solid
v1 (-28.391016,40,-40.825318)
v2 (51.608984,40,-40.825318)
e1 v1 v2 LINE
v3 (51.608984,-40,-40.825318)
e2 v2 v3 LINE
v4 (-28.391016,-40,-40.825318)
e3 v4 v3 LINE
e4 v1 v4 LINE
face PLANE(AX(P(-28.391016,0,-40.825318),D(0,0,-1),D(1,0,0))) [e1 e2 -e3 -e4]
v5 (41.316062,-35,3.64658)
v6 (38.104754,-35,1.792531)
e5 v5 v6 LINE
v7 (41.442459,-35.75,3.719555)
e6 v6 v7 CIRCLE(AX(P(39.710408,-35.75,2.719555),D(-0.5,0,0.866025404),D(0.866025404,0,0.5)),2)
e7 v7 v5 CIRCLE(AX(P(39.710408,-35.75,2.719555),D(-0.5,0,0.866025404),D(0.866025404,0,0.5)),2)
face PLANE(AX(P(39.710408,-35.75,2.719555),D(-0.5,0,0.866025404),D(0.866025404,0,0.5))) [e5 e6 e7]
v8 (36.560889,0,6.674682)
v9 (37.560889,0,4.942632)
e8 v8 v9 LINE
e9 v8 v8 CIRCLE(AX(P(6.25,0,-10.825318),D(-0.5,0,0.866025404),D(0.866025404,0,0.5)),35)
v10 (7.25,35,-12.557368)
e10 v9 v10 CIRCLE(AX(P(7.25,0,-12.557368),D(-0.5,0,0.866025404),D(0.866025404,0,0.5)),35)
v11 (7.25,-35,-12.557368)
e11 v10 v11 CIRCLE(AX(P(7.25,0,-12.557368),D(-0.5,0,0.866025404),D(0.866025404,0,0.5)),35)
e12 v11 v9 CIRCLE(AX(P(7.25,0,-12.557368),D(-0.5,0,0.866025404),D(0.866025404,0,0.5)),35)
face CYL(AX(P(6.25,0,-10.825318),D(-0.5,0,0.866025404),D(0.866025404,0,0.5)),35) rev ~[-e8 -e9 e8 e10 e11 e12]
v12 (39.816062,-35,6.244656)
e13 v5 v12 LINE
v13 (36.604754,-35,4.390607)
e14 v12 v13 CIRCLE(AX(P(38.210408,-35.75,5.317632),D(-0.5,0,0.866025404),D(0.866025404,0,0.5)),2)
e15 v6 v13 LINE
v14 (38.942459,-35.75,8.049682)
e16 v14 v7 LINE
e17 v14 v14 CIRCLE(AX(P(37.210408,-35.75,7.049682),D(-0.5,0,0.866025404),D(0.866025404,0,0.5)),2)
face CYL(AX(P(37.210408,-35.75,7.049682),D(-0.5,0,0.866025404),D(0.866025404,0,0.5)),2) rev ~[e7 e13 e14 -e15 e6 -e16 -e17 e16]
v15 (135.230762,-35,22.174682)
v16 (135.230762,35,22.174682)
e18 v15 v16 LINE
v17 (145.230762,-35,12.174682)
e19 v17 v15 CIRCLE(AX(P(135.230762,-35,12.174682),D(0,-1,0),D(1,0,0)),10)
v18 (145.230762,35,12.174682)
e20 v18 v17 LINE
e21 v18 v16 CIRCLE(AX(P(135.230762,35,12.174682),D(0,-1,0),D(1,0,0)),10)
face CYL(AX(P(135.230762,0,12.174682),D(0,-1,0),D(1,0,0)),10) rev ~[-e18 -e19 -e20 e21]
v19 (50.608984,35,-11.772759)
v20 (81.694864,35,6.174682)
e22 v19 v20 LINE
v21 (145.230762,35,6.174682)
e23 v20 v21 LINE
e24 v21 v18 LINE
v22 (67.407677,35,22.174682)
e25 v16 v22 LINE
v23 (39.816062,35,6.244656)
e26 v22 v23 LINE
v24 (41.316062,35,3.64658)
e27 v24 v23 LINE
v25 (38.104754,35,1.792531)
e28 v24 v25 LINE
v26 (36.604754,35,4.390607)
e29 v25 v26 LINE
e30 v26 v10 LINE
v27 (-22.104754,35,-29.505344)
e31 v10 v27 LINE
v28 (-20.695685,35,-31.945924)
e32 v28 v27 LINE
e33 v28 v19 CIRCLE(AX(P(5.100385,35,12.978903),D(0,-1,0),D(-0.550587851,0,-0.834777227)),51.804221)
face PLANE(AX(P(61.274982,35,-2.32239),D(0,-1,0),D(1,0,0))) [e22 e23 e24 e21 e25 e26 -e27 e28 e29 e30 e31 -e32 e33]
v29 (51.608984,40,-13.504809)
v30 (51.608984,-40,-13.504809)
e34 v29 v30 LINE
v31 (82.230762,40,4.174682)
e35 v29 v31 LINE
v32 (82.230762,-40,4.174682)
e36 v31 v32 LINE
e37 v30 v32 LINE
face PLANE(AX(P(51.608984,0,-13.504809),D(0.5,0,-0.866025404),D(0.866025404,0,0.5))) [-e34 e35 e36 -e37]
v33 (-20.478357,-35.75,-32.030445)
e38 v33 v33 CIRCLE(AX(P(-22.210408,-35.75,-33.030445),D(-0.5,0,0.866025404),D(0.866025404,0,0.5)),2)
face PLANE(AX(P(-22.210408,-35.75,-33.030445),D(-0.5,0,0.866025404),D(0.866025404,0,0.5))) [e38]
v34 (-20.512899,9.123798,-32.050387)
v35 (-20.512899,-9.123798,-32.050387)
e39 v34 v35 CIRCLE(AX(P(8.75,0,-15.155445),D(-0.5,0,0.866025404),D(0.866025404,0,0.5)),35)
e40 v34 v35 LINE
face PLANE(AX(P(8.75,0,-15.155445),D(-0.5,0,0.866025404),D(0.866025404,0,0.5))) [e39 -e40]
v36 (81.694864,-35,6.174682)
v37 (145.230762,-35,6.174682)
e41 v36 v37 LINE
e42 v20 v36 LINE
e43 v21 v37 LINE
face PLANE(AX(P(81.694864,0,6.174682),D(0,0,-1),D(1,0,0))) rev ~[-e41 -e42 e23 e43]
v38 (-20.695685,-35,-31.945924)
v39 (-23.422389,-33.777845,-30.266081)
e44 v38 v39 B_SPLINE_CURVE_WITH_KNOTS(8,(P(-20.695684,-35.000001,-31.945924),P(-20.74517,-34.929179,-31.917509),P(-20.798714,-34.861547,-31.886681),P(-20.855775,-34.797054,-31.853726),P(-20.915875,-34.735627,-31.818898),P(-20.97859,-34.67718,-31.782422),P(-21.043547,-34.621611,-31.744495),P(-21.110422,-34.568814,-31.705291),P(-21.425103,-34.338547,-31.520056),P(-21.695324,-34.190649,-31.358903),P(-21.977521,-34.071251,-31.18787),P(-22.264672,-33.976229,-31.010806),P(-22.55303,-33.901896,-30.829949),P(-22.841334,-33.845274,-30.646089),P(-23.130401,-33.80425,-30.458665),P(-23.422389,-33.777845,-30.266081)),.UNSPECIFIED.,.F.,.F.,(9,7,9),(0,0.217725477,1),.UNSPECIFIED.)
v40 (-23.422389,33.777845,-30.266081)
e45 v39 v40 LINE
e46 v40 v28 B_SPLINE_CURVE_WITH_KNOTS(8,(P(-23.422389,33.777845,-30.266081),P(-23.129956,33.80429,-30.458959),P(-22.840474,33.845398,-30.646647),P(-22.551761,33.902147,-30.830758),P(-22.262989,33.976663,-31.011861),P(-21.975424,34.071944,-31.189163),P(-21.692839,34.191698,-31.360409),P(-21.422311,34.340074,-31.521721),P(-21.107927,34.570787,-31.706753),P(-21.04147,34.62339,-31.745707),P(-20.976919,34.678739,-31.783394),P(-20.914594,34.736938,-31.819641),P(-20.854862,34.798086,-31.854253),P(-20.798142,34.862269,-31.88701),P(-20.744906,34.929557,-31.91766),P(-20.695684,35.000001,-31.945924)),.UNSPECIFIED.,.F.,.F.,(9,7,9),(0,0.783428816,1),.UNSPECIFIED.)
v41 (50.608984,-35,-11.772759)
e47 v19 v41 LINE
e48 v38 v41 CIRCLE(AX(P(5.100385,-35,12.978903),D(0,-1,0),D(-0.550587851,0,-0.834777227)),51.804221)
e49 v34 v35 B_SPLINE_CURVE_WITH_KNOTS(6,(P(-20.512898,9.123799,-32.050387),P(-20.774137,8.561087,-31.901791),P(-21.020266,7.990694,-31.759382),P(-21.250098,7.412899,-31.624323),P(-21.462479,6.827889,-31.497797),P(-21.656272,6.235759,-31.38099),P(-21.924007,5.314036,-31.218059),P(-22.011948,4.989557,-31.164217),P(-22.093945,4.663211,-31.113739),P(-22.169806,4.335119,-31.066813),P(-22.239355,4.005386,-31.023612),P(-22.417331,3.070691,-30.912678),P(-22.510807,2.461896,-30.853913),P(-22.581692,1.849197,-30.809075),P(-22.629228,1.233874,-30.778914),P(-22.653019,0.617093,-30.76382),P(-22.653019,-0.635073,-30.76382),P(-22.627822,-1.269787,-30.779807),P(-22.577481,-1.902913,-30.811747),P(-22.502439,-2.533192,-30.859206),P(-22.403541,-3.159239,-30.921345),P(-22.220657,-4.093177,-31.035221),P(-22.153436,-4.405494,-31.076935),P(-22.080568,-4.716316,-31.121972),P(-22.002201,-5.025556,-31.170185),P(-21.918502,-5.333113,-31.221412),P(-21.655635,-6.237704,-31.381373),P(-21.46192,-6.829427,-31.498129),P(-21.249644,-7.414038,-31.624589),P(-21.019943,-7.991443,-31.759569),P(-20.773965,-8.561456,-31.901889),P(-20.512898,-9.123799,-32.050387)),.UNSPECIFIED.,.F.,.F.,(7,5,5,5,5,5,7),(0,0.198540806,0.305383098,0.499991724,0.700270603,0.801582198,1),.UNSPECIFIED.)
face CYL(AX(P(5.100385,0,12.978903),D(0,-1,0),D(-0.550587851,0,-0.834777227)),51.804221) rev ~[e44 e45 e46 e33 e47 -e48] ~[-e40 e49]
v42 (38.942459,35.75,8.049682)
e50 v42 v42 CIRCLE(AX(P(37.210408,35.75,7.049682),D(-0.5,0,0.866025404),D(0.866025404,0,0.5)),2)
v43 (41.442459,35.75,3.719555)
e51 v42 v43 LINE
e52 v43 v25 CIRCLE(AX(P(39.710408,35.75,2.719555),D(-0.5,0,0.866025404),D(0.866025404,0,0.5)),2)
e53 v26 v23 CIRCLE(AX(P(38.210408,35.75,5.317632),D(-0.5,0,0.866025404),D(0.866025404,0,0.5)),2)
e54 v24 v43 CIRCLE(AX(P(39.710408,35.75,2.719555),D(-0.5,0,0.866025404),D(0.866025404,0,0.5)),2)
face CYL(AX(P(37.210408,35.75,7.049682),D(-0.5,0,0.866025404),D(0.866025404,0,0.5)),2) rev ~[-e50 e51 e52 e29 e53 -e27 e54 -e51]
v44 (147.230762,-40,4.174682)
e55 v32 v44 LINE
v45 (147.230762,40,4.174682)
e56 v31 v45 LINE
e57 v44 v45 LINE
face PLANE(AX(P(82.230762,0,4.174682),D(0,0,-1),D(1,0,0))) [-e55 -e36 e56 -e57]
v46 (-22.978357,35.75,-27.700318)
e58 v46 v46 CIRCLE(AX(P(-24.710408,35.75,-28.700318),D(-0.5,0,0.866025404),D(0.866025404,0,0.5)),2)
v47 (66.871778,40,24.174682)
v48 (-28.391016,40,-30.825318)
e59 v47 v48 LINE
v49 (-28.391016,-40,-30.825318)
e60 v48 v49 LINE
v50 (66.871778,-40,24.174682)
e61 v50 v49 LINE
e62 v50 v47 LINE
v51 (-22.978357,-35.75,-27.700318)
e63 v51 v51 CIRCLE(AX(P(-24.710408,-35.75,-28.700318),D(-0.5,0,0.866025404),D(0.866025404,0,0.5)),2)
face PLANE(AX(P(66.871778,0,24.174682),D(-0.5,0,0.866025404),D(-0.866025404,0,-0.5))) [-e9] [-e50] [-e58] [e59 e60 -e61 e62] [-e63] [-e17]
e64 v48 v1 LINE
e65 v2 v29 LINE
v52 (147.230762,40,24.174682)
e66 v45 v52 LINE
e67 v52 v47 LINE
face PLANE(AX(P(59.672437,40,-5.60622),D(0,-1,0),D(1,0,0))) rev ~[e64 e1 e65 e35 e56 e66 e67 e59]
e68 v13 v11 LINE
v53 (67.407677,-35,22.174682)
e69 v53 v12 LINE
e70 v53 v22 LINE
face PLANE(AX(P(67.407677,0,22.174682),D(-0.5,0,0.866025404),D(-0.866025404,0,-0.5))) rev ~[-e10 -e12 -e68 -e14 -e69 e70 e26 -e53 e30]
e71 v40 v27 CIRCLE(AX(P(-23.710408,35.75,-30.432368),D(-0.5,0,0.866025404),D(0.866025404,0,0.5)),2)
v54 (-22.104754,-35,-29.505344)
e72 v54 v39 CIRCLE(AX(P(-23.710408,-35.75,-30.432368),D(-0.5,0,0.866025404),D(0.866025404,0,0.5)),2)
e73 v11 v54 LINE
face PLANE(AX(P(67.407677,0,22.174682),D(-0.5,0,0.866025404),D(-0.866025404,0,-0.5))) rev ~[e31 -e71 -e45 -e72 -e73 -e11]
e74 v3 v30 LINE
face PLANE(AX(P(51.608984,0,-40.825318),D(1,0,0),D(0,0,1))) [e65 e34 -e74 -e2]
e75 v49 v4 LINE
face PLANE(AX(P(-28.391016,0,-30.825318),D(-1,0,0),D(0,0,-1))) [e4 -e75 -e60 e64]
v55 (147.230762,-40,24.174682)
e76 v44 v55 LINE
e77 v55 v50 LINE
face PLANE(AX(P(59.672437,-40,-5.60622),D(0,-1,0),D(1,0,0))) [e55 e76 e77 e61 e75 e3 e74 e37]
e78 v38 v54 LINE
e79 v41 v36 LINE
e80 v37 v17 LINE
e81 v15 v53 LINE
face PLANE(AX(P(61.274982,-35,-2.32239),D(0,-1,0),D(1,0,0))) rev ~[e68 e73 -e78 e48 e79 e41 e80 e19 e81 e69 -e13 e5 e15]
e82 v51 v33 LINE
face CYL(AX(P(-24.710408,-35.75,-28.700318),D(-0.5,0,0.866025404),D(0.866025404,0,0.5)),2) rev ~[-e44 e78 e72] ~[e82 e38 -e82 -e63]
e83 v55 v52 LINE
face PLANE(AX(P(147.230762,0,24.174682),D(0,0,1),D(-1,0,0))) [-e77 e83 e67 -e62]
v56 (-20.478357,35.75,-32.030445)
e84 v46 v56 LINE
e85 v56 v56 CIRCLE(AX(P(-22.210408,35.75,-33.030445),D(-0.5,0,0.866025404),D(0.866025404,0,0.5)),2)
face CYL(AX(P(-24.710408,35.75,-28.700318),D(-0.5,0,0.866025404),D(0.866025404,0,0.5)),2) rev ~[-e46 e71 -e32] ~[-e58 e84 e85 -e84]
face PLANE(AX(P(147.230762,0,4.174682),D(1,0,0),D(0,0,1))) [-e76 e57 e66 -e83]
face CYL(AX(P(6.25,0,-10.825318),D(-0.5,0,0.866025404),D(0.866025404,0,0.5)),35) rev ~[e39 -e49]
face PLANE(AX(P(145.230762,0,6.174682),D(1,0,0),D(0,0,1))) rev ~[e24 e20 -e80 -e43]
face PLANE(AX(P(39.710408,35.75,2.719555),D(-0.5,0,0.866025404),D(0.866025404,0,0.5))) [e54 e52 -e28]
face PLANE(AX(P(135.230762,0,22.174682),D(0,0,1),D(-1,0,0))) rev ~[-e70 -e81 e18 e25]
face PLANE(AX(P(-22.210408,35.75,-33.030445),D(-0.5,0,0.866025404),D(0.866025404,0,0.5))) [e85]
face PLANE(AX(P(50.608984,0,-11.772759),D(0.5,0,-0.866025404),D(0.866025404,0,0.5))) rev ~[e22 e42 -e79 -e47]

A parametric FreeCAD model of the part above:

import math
import FreeCAD as App
import Part
import Sketcher

V = App.Vector
Q = App.Units.Quantity


def add_polygon(sketch, points):
    """Adds a closed chain of lines whose ends are joined by coincident constraints."""
    first, n = sketch.GeometryCount, len(points)
    for a, b in zip(points, points[1:] + points[:1]):
        sketch.addGeometry(Part.LineSegment(App.Vector(*a, 0), App.Vector(*b, 0)), False)
    for i in range(n):
        sketch.addConstraint(Sketcher.Constraint("Coincident", first + i, 2, first + (i + 1) % n, 1))

doc = App.newDocument("Part")
body = doc.addObject("PartDesign::Body", "Body")

sketch1 = body.newObject("Sketcher::SketchObject", "Sketch")
sketch1.AttachmentSupport = (doc.getObject("XZ_Plane"), [""])
sketch1.MapMode = "FlatFace"
add_polygon(sketch1, [(67, 24), (-28, -31), (-28, -41), (52, -41), (52, -14), (82, 4), (147, 4), (147, 24)])
sketch1.addConstraint([
    Sketcher.Constraint("Vertical", 1),
    Sketcher.Constraint("Horizontal", 2),
    Sketcher.Constraint("Vertical", 3),
    Sketcher.Constraint("Horizontal", 5),
    Sketcher.Constraint("Vertical", 6),
    Sketcher.Constraint("Horizontal", 7),
    Sketcher.Constraint("Parallel", 0, 4),
    Sketcher.Constraint("DistanceX", 2, 1, 2, 2, Q("80 mm")),
    Sketcher.Constraint("DistanceX", 5, 1, 5, 2, Q("65 mm")),
    Sketcher.Constraint("DistanceY", 1, 2, 1, 1, Q("10 mm")),
    Sketcher.Constraint("DistanceY", 6, 1, 6, 2, Q("20 mm")),
    Sketcher.Constraint("Angle", 0, Q("-150 deg")),
    Sketcher.Constraint("Distance", 0, Q("110 mm")),
    Sketcher.Constraint("DistanceY", 3, 1, 3, 2, Q("27.320508 mm")),
    Sketcher.Constraint("DistanceY", 3, 2, -1, 1, Q("13.504809 mm")),
    Sketcher.Constraint("DistanceX", -1, 1, 7, 2, Q("66.871778 mm")),
])
pad1 = body.newObject("PartDesign::Pad", "Pad")
pad1.Profile = sketch1
pad1.Length = 80
pad1.Midplane = True

sketch2 = body.newObject("Sketcher::SketchObject", "Sketch001")
sketch2.AttachmentSupport = (doc.getObject("XZ_Plane"), [""])
sketch2.MapMode = "FlatFace"
sketch2.addGeometry([
    Part.ArcOfCircle(Part.Circle(V(5, 13, 0), V(0, 0, 1), 52), math.radians(-123), math.radians(-29)),
    Part.LineSegment(V(51, -12, 0), V(82, 6, 0)),
    Part.LineSegment(V(82, 6, 0), V(145, 6, 0)),
    Part.LineSegment(V(145, 6, 0), V(145, 12, 0)),
    Part.ArcOfCircle(Part.Circle(V(135, 12, 0), V(0, 0, 1), 10), math.radians(0), math.radians(90)),
    Part.LineSegment(V(135, 22, 0), V(67, 22, 0)),
    Part.LineSegment(V(67, 22, 0), V(-23, -30, 0)),
], False)
sketch2.addConstraint([
    Sketcher.Constraint("Coincident", 0, 2, 1, 1),
    Sketcher.Constraint("Coincident", 1, 2, 2, 1),
    Sketcher.Constraint("Coincident", 2, 2, 3, 1),
    Sketcher.Constraint("Tangent", 3, 2, 4, 1),
    Sketcher.Constraint("Tangent", 4, 2, 5, 1),
    Sketcher.Constraint("Coincident", 5, 2, 6, 1),
    Sketcher.Constraint("Coincident", 6, 2, 0, 1),
    Sketcher.Constraint("Horizontal", 2),
    Sketcher.Constraint("Vertical", 3),
    Sketcher.Constraint("Horizontal", 5),
    Sketcher.Constraint("Parallel", 1, 6),
    Sketcher.Constraint("Radius", 4, Q("10 mm")),
    Sketcher.Constraint("DistanceY", 3, 1, 3, 2, Q("6 mm")),
    Sketcher.Constraint("Angle", 1, Q("30 deg")),
    Sketcher.Constraint("Radius", 0, Q("51.804221 mm")),
    Sketcher.Constraint("DistanceX", 2, 1, 2, 2, Q("63.535898 mm")),
    Sketcher.Constraint("DistanceX", 0, 3, 0, 2, Q("45.508598 mm")),
    Sketcher.Constraint("DistanceX", 5, 2, 5, 1, Q("67.823085 mm")),
    Sketcher.Constraint("DistanceY", 0, 2, -1, 1, Q("11.772759 mm")),
    Sketcher.Constraint("DistanceX", 6, 2, -1, 1, Q("23.422389 mm")),
    Sketcher.Constraint("DistanceY", 4, 3, 0, 3, Q("0.804221 mm")),
])
pocket1 = body.newObject("PartDesign::Pocket", "Pocket")
pocket1.Profile = sketch2
pocket1.Length = 70
pocket1.Midplane = True

sketch3 = body.newObject("Sketcher::SketchObject", "Sketch002")
sketch3.Placement = App.Placement(V(6.25, 0, -10.825318), App.Rotation(V(0.866025404, 0, 0.5), V(0, 1, 0), V(-0.5, 0, 0.866025404), "ZXY"))
sketch3.addGeometry([
    Part.Circle(V(0, 0, 0), V(0, 0, 1), 35),
    Part.Circle(V(-35.8, 35.8, 0), V(0, 0, 1), 2),
    Part.Circle(V(35.8, 35.8, 0), V(0, 0, 1), 2),
    Part.Circle(V(35.8, -35.8, 0), V(0, 0, 1), 2),
    Part.Circle(V(-35.8, -35.8, 0), V(0, 0, 1), 2),
], False)
sketch3.addConstraint([
    Sketcher.Constraint("Coincident", 0, 3, -1, 1),
    Sketcher.Constraint("Equal", 1, 2),
    Sketcher.Constraint("Equal", 2, 3),
    Sketcher.Constraint("Equal", 3, 4),
    Sketcher.Constraint("Symmetric", 1, 3, 3, 3, -1, 1),
    Sketcher.Constraint("Symmetric", 2, 3, 4, 3, -1, 1),
    Sketcher.Constraint("Symmetric", 1, 3, 2, 3, -2),
    Sketcher.Constraint("Diameter", 0, Q("70 mm")),
    Sketcher.Constraint("Diameter", 1, Q("4 mm")),
    Sketcher.Constraint("DistanceX", 1, 3, 2, 3, Q("71.5 mm")),
    Sketcher.Constraint("DistanceY", 3, 3, 2, 3, Q("71.5 mm")),
])
pocket2 = body.newObject("PartDesign::Pocket", "Pocket001")
pocket2.Profile = sketch3
pocket2.Length = 5

doc.recompute()
